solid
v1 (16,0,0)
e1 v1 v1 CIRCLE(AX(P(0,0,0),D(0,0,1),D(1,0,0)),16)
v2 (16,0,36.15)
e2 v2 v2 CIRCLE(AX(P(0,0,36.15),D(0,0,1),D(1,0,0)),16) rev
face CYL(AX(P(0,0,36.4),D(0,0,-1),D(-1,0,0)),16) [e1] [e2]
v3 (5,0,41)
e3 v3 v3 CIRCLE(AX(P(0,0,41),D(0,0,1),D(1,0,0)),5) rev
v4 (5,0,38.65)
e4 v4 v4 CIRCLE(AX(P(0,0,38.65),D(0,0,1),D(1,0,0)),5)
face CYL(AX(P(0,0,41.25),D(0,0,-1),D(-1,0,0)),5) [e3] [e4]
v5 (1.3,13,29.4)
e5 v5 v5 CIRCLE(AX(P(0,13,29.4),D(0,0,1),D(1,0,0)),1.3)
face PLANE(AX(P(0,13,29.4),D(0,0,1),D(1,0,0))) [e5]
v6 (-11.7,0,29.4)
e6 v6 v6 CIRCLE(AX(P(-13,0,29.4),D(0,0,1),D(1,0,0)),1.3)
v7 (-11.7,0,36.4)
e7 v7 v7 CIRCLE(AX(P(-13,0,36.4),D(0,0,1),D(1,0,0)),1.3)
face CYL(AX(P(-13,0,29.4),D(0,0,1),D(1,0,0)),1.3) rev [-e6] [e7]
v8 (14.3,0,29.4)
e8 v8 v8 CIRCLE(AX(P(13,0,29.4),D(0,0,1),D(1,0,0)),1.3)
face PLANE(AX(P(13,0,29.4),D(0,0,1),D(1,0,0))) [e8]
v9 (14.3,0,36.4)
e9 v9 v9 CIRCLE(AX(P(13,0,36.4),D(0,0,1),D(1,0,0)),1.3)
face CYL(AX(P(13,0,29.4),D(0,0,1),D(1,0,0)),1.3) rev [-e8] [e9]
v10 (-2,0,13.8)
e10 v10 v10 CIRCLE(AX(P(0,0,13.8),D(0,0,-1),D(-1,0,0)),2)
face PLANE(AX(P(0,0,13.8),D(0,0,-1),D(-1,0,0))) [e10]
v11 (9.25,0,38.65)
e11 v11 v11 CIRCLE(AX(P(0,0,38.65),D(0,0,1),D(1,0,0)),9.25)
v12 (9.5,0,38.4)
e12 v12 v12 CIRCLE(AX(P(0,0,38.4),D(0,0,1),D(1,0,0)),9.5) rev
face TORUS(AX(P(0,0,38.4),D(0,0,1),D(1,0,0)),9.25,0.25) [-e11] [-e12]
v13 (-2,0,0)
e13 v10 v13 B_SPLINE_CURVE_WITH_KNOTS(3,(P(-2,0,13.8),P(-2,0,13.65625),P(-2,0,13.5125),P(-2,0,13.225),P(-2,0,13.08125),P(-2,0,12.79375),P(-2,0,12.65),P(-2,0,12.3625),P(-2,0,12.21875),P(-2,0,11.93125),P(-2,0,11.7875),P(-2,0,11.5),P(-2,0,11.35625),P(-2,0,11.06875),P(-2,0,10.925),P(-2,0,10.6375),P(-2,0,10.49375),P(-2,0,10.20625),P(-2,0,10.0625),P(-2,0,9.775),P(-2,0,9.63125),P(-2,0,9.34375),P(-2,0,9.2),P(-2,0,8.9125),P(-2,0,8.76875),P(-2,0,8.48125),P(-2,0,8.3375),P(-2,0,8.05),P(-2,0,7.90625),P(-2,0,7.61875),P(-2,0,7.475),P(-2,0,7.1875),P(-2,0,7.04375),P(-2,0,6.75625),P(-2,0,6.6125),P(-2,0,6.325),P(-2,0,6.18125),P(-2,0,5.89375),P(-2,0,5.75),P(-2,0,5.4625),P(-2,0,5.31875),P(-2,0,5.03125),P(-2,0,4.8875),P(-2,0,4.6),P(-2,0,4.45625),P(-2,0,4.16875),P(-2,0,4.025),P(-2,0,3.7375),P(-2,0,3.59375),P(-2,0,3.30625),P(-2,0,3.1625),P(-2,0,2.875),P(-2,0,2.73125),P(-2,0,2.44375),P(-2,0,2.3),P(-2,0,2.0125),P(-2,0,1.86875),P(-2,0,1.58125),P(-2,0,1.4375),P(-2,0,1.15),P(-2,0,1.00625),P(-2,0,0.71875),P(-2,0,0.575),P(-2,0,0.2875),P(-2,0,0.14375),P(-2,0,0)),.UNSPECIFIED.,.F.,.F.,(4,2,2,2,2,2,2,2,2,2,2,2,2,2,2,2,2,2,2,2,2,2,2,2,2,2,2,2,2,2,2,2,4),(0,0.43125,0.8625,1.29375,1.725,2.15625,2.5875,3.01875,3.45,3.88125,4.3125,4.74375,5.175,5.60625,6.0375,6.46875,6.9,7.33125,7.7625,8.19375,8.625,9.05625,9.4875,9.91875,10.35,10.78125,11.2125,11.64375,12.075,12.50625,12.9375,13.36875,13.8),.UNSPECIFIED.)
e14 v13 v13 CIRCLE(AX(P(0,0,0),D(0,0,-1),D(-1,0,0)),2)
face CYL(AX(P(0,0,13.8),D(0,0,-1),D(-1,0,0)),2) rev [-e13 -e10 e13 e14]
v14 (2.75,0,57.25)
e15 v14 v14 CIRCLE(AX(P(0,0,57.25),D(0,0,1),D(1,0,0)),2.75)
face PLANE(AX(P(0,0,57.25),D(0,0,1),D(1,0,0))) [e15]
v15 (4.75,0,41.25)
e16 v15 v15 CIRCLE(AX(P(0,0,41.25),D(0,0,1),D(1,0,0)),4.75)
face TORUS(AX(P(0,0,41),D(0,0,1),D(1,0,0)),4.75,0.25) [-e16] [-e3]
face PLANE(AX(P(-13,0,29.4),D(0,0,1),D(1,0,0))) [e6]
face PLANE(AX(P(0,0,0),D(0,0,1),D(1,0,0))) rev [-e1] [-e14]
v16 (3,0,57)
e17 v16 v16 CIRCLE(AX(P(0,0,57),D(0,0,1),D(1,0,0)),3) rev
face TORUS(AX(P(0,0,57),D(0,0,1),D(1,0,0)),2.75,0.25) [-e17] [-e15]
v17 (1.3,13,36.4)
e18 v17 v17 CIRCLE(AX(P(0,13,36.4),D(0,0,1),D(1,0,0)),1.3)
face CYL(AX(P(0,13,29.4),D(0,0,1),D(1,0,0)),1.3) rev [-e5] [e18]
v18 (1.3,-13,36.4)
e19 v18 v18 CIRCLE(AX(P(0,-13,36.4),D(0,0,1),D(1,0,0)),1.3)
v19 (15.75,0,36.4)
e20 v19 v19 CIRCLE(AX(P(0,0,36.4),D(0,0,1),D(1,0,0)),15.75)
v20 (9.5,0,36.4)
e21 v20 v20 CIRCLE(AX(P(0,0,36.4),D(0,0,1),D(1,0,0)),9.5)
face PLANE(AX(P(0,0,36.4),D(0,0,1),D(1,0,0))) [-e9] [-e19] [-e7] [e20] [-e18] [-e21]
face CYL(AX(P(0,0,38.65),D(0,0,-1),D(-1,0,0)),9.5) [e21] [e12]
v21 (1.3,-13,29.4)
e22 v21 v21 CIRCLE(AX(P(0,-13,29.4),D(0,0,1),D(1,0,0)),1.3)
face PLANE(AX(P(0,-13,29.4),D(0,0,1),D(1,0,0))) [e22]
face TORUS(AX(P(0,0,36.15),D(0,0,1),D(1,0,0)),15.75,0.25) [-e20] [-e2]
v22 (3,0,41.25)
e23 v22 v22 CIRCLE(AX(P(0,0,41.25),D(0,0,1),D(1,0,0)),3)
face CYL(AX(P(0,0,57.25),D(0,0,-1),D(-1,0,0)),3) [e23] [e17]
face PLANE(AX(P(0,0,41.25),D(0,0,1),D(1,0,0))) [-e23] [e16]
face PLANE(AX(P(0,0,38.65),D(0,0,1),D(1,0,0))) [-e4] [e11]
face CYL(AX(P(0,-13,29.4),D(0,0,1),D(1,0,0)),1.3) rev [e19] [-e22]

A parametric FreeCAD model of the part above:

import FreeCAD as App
import Part
import Sketcher
from FreeCAD import Vector
Q = App.Units.Quantity


def edges_at(feature, points):
    """Names of the edges that pass closest to the given points."""
    edges = feature.Shape.Edges
    near = lambda p: min(range(len(edges)), key=lambda i: edges[i].distToShape(Part.Vertex(*p))[0])
    return sorted({f"Edge{near(p) + 1}" for p in points})

doc = App.newDocument("Part")
params = doc.addObject("Spreadsheet::Sheet", "Params")
for row, (alias, value) in enumerate([
    ("sketch1_diameter", "32 mm"),
    ("pad1_length", "36.4 mm"),
    ("sketch2_diameter", "19 mm"),
    ("pad2_length", "2.25 mm"),
    ("sketch3_diameter", "10 mm"),
    ("pad3_length", "2.6 mm"),
    ("sketch4_diameter", "6 mm"),
    ("pad4_length", "16 mm"),
    ("fillet_radius", "0.25 mm"),
    ("sketch5_diameter", "2.6 mm"),
    ("pocket1_length", "7 mm"),
    ("sketch6_diameter", "4 mm"),
    ("pocket2_length", "13.8 mm"),
], start=1):
    params.set(f"A{row}", alias)
    params.set(f"B{row}", "=" + value)
    params.setAlias(f"B{row}", alias)

body = doc.addObject("PartDesign::Body", "Body")

sketch1 = body.newObject("Sketcher::SketchObject", "Sketch")
sketch1.AttachmentSupport = (doc.getObject("XY_Plane"), [""])
sketch1.MapMode = "FlatFace"
sketch1.addGeometry(Part.Circle(Vector(0, 0, 0), Vector(0, 0, 1), 16), False)
sketch1.addConstraint(Sketcher.Constraint("Coincident", 0, 3, -1, 1))
sketch1.addConstraint(Sketcher.Constraint("Diameter", 0, Q("32 mm")))
sketch1.setExpression("Constraints[1]", "Params.sketch1_diameter")
pad1 = body.newObject("PartDesign::Pad", "Pad")
pad1.Profile = sketch1
pad1.setExpression("Length", "Params.pad1_length")

sketch2 = body.newObject("Sketcher::SketchObject", "Sketch001")
sketch2.AttachmentSupport = (doc.getObject("XY_Plane"), [""])
sketch2.MapMode = "FlatFace"
sketch2.AttachmentOffset = App.Placement(Vector(0, 0, 36.4), App.Rotation())
sketch2.addGeometry(Part.Circle(Vector(0, 0, 0), Vector(0, 0, 1), 10), False)
sketch2.addConstraint(Sketcher.Constraint("Coincident", 0, 3, -1, 1))
sketch2.addConstraint(Sketcher.Constraint("Diameter", 0, Q("19 mm")))
sketch2.setExpression("Constraints[1]", "Params.sketch2_diameter")
pad2 = body.newObject("PartDesign::Pad", "Pad001")
pad2.Profile = sketch2
pad2.setExpression("Length", "Params.pad2_length")

sketch3 = body.newObject("Sketcher::SketchObject", "Sketch002")
sketch3.AttachmentSupport = (doc.getObject("XY_Plane"), [""])
sketch3.MapMode = "FlatFace"
sketch3.AttachmentOffset = App.Placement(Vector(0, 0, 38.65), App.Rotation())
sketch3.addGeometry(Part.Circle(Vector(0, 0, 0), Vector(0, 0, 1), 5), False)
sketch3.addConstraint(Sketcher.Constraint("Coincident", 0, 3, -1, 1))
sketch3.addConstraint(Sketcher.Constraint("Diameter", 0, Q("10 mm")))
sketch3.setExpression("Constraints[1]", "Params.sketch3_diameter")
pad3 = body.newObject("PartDesign::Pad", "Pad002")
pad3.Profile = sketch3
pad3.setExpression("Length", "Params.pad3_length")

sketch4 = body.newObject("Sketcher::SketchObject", "Sketch003")
sketch4.AttachmentSupport = (doc.getObject("XY_Plane"), [""])
sketch4.MapMode = "FlatFace"
sketch4.AttachmentOffset = App.Placement(Vector(0, 0, 41.25), App.Rotation())
sketch4.addGeometry(Part.Circle(Vector(0, 0, 0), Vector(0, 0, 1), 3), False)
sketch4.addConstraint(Sketcher.Constraint("Coincident", 0, 3, -1, 1))
sketch4.addConstraint(Sketcher.Constraint("Diameter", 0, Q("6 mm")))
sketch4.setExpression("Constraints[1]", "Params.sketch4_diameter")
pad4 = body.newObject("PartDesign::Pad", "Pad003")
pad4.Profile = sketch4
pad4.setExpression("Length", "Params.pad4_length")
doc.recompute()

fillet = body.newObject("PartDesign::Fillet", "Fillet")
fillet.Base = (pad4, edges_at(pad4, [
    (-5, 0, 41.25),
    (-3, 0, 57.25),
    (-16, 0, 36.4),
    (-9.5, 0, 38.65),
]))
fillet.setExpression("Radius", "Params.fillet_radius")

sketch5 = body.newObject("Sketcher::SketchObject", "Sketch004")
sketch5.AttachmentSupport = (doc.getObject("XY_Plane"), [""])
sketch5.MapMode = "FlatFace"
sketch5.AttachmentOffset = App.Placement(Vector(0, 0, 36.4), App.Rotation())
sketch5.addGeometry(Part.Circle(Vector(0, 13, 0), Vector(0, 0, 1), 1.3), False)
sketch5.addGeometry(Part.Circle(Vector(-13, 0, 0), Vector(0, 0, 1), 1.3), False)
sketch5.addGeometry(Part.Circle(Vector(13, 0, 0), Vector(0, 0, 1), 1.3), False)
sketch5.addGeometry(Part.Circle(Vector(0, -13, 0), Vector(0, 0, 1), 1.3), False)
sketch5.addConstraint(Sketcher.Constraint("Equal", 0, 1))
sketch5.addConstraint(Sketcher.Constraint("Equal", 1, 2))
sketch5.addConstraint(Sketcher.Constraint("Equal", 2, 3))
sketch5.addConstraint(Sketcher.Constraint("Symmetric", 1, 3, 2, 3, -1, 1))
sketch5.addConstraint(Sketcher.Constraint("Symmetric", 0, 3, 3, 3, -1, 1))
sketch5.addConstraint(Sketcher.Constraint("PointOnObject", 0, 3, -2))
sketch5.addConstraint(Sketcher.Constraint("PointOnObject", 1, 3, -1))
sketch5.addConstraint(Sketcher.Constraint("Diameter", 0, Q("2.6 mm")))
sketch5.addConstraint(Sketcher.Constraint("DistanceY", -1, 1, 0, 3, Q("13 mm")))
sketch5.addConstraint(Sketcher.Constraint("DistanceX", 1, 3, -1, 1, Q("13 mm")))
sketch5.setExpression("Constraints[7]", "Params.sketch5_diameter")
pocket1 = body.newObject("PartDesign::Pocket", "Pocket")
pocket1.Profile = sketch5
pocket1.setExpression("Length", "Params.pocket1_length")

sketch6 = body.newObject("Sketcher::SketchObject", "Sketch005")
sketch6.AttachmentSupport = (doc.getObject("XY_Plane"), [""])
sketch6.MapMode = "FlatFace"
sketch6.addGeometry(Part.Circle(Vector(0, 0, 0), Vector(0, 0, 1), 2), False)
sketch6.addConstraint(Sketcher.Constraint("Coincident", 0, 3, -1, 1))
sketch6.addConstraint(Sketcher.Constraint("Diameter", 0, Q("4 mm")))
sketch6.setExpression("Constraints[1]", "Params.sketch6_diameter")
pocket2 = body.newObject("PartDesign::Pocket", "Pocket001")
pocket2.Profile = sketch6
pocket2.setExpression("Length", "Params.pocket2_length")
pocket2.Reversed = True

doc.recompute()
